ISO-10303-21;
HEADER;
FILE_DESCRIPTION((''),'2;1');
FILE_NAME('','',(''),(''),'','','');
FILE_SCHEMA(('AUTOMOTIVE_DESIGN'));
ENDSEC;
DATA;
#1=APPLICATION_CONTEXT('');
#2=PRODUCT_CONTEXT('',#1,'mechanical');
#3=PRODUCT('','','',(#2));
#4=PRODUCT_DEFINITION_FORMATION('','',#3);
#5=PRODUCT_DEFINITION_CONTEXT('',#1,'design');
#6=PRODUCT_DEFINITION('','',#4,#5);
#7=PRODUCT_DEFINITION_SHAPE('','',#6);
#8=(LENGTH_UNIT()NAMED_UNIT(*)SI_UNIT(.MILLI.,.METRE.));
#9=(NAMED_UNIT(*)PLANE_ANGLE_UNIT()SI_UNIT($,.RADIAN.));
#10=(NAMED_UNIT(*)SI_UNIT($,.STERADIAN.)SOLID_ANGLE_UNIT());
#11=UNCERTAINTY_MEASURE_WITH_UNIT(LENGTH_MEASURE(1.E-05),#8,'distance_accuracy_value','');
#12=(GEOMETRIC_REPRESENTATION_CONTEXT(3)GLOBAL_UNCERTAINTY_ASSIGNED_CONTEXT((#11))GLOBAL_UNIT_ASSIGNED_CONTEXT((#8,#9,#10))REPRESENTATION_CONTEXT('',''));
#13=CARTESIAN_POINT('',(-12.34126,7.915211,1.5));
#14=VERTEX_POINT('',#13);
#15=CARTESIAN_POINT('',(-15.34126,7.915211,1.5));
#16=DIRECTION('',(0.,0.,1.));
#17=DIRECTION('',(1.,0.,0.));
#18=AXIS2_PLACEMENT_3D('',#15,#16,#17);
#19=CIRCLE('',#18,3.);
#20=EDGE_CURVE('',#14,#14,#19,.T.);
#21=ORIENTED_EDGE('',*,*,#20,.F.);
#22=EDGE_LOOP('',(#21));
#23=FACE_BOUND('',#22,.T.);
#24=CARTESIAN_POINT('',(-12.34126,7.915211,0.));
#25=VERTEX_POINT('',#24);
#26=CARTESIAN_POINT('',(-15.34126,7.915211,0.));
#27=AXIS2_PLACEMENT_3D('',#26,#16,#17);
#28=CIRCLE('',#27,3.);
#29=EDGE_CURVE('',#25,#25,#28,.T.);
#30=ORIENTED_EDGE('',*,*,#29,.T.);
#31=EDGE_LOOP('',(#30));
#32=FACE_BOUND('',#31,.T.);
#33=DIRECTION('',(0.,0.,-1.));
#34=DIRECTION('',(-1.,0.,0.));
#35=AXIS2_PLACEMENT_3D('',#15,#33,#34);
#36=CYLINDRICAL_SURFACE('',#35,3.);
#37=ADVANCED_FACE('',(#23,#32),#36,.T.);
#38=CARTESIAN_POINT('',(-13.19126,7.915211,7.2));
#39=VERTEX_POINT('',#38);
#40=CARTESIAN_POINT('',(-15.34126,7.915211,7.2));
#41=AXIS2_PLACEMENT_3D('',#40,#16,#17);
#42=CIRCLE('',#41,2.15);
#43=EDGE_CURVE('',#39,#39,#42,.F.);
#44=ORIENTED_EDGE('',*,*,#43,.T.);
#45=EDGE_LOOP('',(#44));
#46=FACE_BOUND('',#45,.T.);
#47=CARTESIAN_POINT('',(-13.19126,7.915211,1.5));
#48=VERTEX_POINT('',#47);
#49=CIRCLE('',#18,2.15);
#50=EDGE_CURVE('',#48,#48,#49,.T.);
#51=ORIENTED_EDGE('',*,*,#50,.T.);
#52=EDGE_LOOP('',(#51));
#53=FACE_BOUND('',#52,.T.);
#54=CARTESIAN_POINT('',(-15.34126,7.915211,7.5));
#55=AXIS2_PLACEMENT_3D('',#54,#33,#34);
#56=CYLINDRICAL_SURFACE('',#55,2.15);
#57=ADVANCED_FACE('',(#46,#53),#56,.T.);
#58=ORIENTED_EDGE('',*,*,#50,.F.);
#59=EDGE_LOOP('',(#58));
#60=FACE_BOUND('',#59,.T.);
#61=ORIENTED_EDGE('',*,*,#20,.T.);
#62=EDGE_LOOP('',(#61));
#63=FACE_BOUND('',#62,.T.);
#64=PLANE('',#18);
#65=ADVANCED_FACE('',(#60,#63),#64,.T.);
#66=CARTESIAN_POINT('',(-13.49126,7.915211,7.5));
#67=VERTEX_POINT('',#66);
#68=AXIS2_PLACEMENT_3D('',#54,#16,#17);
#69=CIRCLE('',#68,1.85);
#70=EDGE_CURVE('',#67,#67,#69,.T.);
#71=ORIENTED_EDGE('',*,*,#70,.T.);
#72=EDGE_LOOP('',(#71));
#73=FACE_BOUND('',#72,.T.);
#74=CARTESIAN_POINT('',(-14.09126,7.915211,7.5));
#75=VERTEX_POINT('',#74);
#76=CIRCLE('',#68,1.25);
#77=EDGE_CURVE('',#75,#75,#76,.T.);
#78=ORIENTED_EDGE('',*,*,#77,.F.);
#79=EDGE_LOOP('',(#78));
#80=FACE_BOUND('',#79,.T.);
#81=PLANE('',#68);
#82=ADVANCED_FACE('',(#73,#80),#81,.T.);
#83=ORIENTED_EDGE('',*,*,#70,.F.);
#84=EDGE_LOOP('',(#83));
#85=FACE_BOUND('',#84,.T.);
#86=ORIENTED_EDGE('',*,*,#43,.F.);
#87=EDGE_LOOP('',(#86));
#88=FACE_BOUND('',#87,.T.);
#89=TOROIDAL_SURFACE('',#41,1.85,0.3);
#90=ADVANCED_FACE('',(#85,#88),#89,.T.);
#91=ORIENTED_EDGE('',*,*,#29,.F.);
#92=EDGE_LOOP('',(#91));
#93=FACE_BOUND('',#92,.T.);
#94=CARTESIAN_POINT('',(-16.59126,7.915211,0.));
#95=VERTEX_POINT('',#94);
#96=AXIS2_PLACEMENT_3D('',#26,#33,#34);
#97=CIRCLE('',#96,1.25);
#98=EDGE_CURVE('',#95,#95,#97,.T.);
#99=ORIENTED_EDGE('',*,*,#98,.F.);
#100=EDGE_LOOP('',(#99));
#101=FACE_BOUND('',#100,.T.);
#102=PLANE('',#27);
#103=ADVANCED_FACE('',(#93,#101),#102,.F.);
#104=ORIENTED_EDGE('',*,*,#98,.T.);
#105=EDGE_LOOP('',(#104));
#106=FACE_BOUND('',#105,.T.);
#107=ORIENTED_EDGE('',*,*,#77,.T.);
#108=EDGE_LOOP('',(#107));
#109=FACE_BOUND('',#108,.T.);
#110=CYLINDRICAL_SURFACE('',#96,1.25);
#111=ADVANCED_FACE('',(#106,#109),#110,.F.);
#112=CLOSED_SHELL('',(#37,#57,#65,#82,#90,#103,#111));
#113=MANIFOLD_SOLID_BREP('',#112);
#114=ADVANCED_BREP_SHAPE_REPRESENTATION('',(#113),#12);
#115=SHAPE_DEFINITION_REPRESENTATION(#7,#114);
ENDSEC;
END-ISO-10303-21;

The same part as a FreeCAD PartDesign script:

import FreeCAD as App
import Part
import Sketcher

V = App.Vector
Q = App.Units.Quantity


def edges_at(feature, points):
    """Names of the edges that pass closest to the given points."""
    edges = feature.Shape.Edges
    near = lambda p: min(range(len(edges)), key=lambda i: edges[i].distToShape(Part.Vertex(*p))[0])
    return sorted({f"Edge{near(p) + 1}" for p in points})

doc = App.newDocument("Part")
body = doc.addObject("PartDesign::Body", "Body")

# Sketch on XY plane
sketch1 = body.newObject("Sketcher::SketchObject", "Sketch")
sketch1.AttachmentSupport = (doc.getObject("XY_Plane"), [""])
sketch1.MapMode = "FlatFace"
sketch1.addGeometry(Part.Circle(V(-15.34126, 7.915211, 0), V(0, 0, 1), 3), False)
sketch1.addConstraint(Sketcher.Constraint("Diameter", 0, Q("6 mm")))
sketch1.addConstraint(Sketcher.Constraint("DistanceX", 0, 3, -1, 1, Q("15.34126 mm")))
sketch1.addConstraint(Sketcher.Constraint("DistanceY", -1, 1, 0, 3, Q("7.915211 mm")))
pad1 = body.newObject("PartDesign::Pad", "Pad")
pad1.Profile = sketch1
pad1.Length = 1.5

# Sketch on XY plane
sketch2 = body.newObject("Sketcher::SketchObject", "Sketch001")
sketch2.AttachmentSupport = (doc.getObject("XY_Plane"), [""])
sketch2.MapMode = "FlatFace"
sketch2.AttachmentOffset = App.Placement(V(0, 0, 1.5), App.Rotation())
sketch2.addGeometry(Part.Circle(V(-15.34126, 7.915211, 0), V(0, 0, 1), 2.15), False)
sketch2.addConstraint(Sketcher.Constraint("Diameter", 0, Q("4.3 mm")))
sketch2.addConstraint(Sketcher.Constraint("DistanceX", 0, 3, -1, 1, Q("15.34126 mm")))
sketch2.addConstraint(Sketcher.Constraint("DistanceY", -1, 1, 0, 3, Q("7.915211 mm")))
pad2 = body.newObject("PartDesign::Pad", "Pad001")
pad2.Profile = sketch2
pad2.Length = 6

# Sketch on XY plane
sketch3 = body.newObject("Sketcher::SketchObject", "Sketch002")
sketch3.AttachmentSupport = (doc.getObject("XY_Plane"), [""])
sketch3.MapMode = "FlatFace"
sketch3.addGeometry(Part.Circle(V(-15.34126, 7.915211, 0), V(0, 0, 1), 1.25), False)
sketch3.addConstraint(Sketcher.Constraint("Diameter", 0, Q("2.5 mm")))
sketch3.addConstraint(Sketcher.Constraint("DistanceX", 0, 3, -1, 1, Q("15.34126 mm")))
sketch3.addConstraint(Sketcher.Constraint("DistanceY", -1, 1, 0, 3, Q("7.915211 mm")))
doc.recompute()
hole = body.newObject("PartDesign::Hole", "Hole")
hole.Profile = sketch3
hole.ThreadType = "None"
hole.Diameter = 2.5
hole.DepthType = "ThroughAll"
hole.Reversed = True
doc.recompute()

fillet = body.newObject("PartDesign::Fillet", "Fillet")
fillet.Base = (hole, edges_at(hole, [(-17.491, 7.915, 7.5)]))
fillet.Radius = 0.3

doc.recompute()
